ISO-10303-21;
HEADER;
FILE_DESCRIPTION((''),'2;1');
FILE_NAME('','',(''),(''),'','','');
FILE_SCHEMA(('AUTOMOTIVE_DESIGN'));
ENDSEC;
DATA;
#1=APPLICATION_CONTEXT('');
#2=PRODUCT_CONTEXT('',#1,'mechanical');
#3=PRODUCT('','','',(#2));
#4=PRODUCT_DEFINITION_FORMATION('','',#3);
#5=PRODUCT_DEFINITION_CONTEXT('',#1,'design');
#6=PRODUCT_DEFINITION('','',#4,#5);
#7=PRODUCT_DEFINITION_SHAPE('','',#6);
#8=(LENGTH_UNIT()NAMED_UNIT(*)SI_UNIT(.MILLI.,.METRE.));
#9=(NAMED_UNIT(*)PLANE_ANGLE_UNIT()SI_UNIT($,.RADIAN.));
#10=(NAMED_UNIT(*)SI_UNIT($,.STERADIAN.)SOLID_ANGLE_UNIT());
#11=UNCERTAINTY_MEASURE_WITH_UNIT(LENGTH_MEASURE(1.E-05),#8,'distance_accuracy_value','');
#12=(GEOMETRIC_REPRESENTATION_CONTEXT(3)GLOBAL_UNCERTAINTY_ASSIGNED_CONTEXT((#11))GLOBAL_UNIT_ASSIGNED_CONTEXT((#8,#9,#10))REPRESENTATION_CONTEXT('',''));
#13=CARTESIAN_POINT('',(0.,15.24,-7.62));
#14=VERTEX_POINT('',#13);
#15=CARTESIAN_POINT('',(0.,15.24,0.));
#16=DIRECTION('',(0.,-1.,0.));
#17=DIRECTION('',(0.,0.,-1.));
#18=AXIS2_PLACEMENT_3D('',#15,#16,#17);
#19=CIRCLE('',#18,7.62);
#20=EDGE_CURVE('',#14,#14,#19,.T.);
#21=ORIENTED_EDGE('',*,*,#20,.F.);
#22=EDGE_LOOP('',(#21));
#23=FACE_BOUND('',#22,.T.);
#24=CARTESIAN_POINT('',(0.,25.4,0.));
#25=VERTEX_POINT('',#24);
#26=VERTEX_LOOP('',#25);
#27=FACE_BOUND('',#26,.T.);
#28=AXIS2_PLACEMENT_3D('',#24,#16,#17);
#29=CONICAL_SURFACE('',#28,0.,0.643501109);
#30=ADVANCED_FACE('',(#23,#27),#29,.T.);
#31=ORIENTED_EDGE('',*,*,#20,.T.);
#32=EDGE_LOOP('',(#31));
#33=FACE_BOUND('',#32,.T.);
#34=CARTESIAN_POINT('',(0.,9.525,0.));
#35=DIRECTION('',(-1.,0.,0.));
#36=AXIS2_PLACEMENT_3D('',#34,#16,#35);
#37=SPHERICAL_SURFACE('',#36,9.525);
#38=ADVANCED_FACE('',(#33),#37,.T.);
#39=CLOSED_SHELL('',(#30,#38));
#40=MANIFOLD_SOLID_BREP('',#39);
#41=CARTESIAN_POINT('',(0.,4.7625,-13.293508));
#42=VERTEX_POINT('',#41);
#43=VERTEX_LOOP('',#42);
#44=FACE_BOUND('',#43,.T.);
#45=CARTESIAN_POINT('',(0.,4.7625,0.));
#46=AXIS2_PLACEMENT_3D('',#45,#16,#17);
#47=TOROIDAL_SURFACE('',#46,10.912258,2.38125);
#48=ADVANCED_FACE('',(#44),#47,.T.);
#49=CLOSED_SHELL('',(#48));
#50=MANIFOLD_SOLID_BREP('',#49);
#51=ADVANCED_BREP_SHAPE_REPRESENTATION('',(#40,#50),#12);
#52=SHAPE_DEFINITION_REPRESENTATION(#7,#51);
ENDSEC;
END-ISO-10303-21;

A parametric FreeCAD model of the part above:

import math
import FreeCAD as App
import Part
import Sketcher

V = App.Vector
Q = App.Units.Quantity

doc = App.newDocument("Part")
params = doc.addObject("Spreadsheet::Sheet", "Params")
for row, (alias, value) in enumerate([
    ("sketch1_height", "1 in"),
    ("sketch1_diameter", "0.1875 in"),
    ("sketch1_radius", "0.375 in"),
    ("sketch1_height2", "0.15 in"),
    ("revolution_angle", "360 deg"),
], start=1):
    params.set(f"A{row}", alias)
    params.set(f"B{row}", "=" + value)
    params.setAlias(f"B{row}", alias)

body = doc.addObject("PartDesign::Body", "Body")
body.AllowCompound = True

sketch1 = doc.addObject("Sketcher::SketchObject", "Sketch")
body.addObject(sketch1)
sketch1.AttachmentSupport = (doc.XY_Plane, [""])
sketch1.MapMode = "FlatFace"
sketch1.addGeometry([
    Part.Circle(V(-10.9, 4.8, 0), V(0, 0, 1), 2.4),
    Part.LineSegment(V(0, 25.4, 0), V(-7.6, 15.2, 0)),
    Part.ArcOfCircle(Part.Circle(V(0, 9.5, 0), V(0, 0, 1), 9.5), math.radians(143), math.radians(204)),
    Part.ArcOfCircle(Part.Circle(V(0, 9.5, 0), V(0, 0, 1), 9.5), math.radians(-156), math.radians(-90)),
    Part.LineSegment(V(0, 0, 0), V(0, 25.4, 0)),
], False)
sketch1.addConstraint([
    Sketcher.Constraint("Tangent", 1, 2, 2, 1),
    Sketcher.Constraint("Tangent", 2, 2, 3, 1),
    Sketcher.Constraint("Coincident", 3, 2, 4, 1),
    Sketcher.Constraint("Coincident", 4, 2, 1, 1),
    Sketcher.Constraint("Vertical", 4),
    Sketcher.Constraint("Coincident", 3, 2, -1, 1),
    Sketcher.Constraint("Equal", 2, 3),
    Sketcher.Constraint("PointOnObject", 2, 3, -2),
    Sketcher.Constraint("DistanceY", 4, 1, 4, 2, Q("1 in")),
    Sketcher.Constraint("Diameter", 0, Q("0.1875 in")),
    Sketcher.Constraint("Radius", 2, Q("0.375 in")),
    Sketcher.Constraint("DistanceY", 2, 2, 2, 3, Q("0.15 in")),
    Sketcher.Constraint("DistanceY", -1, 1, 0, 3, Q("0.1875 in")),
    Sketcher.Constraint("DistanceX", 0, 3, -1, 1, 10.912258),
])
sketch1.setExpression("Constraints[8]", "Params.sketch1_height")
sketch1.setExpression("Constraints[9]", "Params.sketch1_diameter")
sketch1.setExpression("Constraints[10]", "Params.sketch1_radius")
sketch1.setExpression("Constraints[11]", "Params.sketch1_height2")
revolution = doc.addObject("PartDesign::Revolution", "Revolution")
body.addObject(revolution)
revolution.Profile = sketch1
revolution.ReferenceAxis = (sketch1, ["V_Axis"])
revolution.setExpression("Angle", "Params.revolution_angle")

doc.recompute()
